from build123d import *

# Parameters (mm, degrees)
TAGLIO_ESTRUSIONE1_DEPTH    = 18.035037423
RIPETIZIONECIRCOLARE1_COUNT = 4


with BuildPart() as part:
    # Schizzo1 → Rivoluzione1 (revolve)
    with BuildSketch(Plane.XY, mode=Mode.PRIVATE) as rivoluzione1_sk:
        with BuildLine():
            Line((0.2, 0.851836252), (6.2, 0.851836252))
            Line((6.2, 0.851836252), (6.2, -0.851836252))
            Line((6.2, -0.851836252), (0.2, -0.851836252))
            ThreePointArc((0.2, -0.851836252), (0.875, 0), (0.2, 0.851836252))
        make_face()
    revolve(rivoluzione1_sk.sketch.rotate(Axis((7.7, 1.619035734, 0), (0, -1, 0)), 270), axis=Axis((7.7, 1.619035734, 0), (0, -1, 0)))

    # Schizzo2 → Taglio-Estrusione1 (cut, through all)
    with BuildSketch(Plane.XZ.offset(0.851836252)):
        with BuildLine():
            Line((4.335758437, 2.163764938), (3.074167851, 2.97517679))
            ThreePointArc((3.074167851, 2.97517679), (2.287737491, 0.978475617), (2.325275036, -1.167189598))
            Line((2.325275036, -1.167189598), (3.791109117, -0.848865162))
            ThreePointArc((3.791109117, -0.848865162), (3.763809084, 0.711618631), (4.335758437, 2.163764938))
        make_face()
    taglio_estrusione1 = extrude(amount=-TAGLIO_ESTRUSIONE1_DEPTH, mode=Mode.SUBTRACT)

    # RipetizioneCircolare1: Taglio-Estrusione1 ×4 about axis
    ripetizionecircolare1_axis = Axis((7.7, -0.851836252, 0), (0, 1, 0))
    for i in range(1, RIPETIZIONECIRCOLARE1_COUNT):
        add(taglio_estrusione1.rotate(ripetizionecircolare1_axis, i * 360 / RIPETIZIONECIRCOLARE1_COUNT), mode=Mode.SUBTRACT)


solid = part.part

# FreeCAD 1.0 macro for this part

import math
import FreeCAD as App
import Part
import Sketcher
from FreeCAD import Vector

doc = App.newDocument("Part")
params = doc.addObject("Spreadsheet::Sheet", "Params")
for row, (alias, value) in enumerate([
    ("sketch1_width", "6 mm"),
    ("revolution_angle", "360 deg"),
    ("sketch2_radius", "4 mm"),
    ("sketch2_radius2", "5.5 mm"),
], start=1):
    params.set(f"A{row}", alias)
    params.set(f"B{row}", "=" + value)
    params.setAlias(f"B{row}", alias)

body = doc.addObject("PartDesign::Body", "Body")

sketch1 = body.newObject("Sketcher::SketchObject", "Sketch")
sketch1.AttachmentSupport = (doc.getObject("XY_Plane"), [""])
sketch1.MapMode = "FlatFace"
sketch1.addGeometry([
    Part.LineSegment(Vector(6.2, 0.851836, 0), Vector(0.2, 0.851836, 0)),
    Part.ArcOfCircle(Part.Circle(Vector(0, 0, 0), Vector(0, 0, 1), 0.875), math.radians(-76.78702), math.radians(76.78702)),
    Part.LineSegment(Vector(0.2, -0.851836, 0), Vector(6.2, -0.851836, 0)),
    Part.LineSegment(Vector(6.2, -0.851836, 0), Vector(6.2, 0.851836, 0)),
], False)
sketch1.addGeometry(Part.LineSegment(Vector(7.7, 0.851836, 0), Vector(7.7, -0.851836, 0)), True)
sketch1.addConstraint([
    Sketcher.Constraint("Coincident", 0, 2, 1, 2),
    Sketcher.Constraint("Coincident", 1, 1, 2, 1),
    Sketcher.Constraint("Coincident", 2, 2, 3, 1),
    Sketcher.Constraint("Coincident", 3, 2, 0, 1),
    Sketcher.Constraint("Horizontal", 0),
    Sketcher.Constraint("Horizontal", 2),
    Sketcher.Constraint("Vertical", 3),
    Sketcher.Constraint("Vertical", 4),
    Sketcher.Constraint("Coincident", 1, 3, -1, 1),
    Sketcher.Constraint("Horizontal", 3, 2, 4, 1),
    Sketcher.Constraint("Horizontal", 2, 2, 4, 2),
    Sketcher.Constraint("Vertical", 0, 2, 1, 1),
    Sketcher.Constraint("DistanceX", 0, 2, 0, 1, 6.0),
    Sketcher.Constraint("Radius", 1, 0.875),
    Sketcher.Constraint("DistanceX", -1, 1, 0, 2, 0.2),
    Sketcher.Constraint("DistanceX", -1, 1, 4, 1, 7.7),
])
sketch1.setExpression("Constraints[12]", "Params.sketch1_width")
revolution = body.newObject("PartDesign::Revolution", "Revolution")
revolution.Profile = sketch1
revolution.ReferenceAxis = (sketch1, ["Axis0"])
revolution.setExpression("Angle", "Params.revolution_angle")

sketch2 = body.newObject("Sketcher::SketchObject", "Sketch001")
sketch2.AttachmentSupport = (doc.getObject("XZ_Plane"), [""])
sketch2.MapMode = "FlatFace"
sketch2.AttachmentOffset = App.Placement(Vector(0, 0, 0.851836), App.Rotation())
sketch2.addGeometry([
    Part.LineSegment(Vector(4.335758, 2.163765, 0), Vector(3.074168, 2.975177, 0)),
    Part.ArcOfCircle(Part.Circle(Vector(7.7, 0, 0), Vector(0, 0, 1), 5.5), math.radians(147.252264), math.radians(192.252264)),
    Part.LineSegment(Vector(2.325275, -1.16719, 0), Vector(3.791109, -0.848865, 0)),
    Part.ArcOfCircle(Part.Circle(Vector(7.7, 0, 0), Vector(0, 0, 1), 4), math.radians(147.252264), math.radians(192.252264)),
], False)
sketch2.addConstraint([
    Sketcher.Constraint("Coincident", 0, 2, 1, 1),
    Sketcher.Constraint("Coincident", 1, 2, 2, 1),
    Sketcher.Constraint("Coincident", 2, 2, 3, 2),
    Sketcher.Constraint("Coincident", 3, 1, 0, 1),
    Sketcher.Constraint("Coincident", 3, 3, 1, 3),
    Sketcher.Constraint("PointOnObject", 1, 3, -1),
    Sketcher.Constraint("Radius", 3, 4.0),
    Sketcher.Constraint("Radius", 1, 5.5),
    Sketcher.Constraint("DistanceX", -1, 1, 1, 3, 7.7),
    Sketcher.Constraint("DistanceY", 1, 2, -1, 1, 1.16719),
    Sketcher.Constraint("DistanceX", -1, 1, 2, 2, 3.791109),
    Sketcher.Constraint("DistanceX", -1, 1, 3, 1, 4.335758),
    Sketcher.Constraint("DistanceX", 0, 2, 2, 2, 0.716941),
])
sketch2.setExpression("Constraints[6]", "Params.sketch2_radius")
sketch2.setExpression("Constraints[7]", "Params.sketch2_radius2")
pocket1 = body.newObject("PartDesign::Pocket", "Pocket")
pocket1.Profile = sketch2
pocket1.Type = "ThroughAll"
doc.recompute()

datumline = body.newObject("PartDesign::Line", "DatumLine")
datumline.Placement = App.Placement(Vector(7.7, 0, 0), App.Rotation(Vector(0, 0, 1), Vector(0, 1, 0)))
polarpattern = body.newObject("PartDesign::PolarPattern", "PolarPattern")
polarpattern.Originals = [pocket1]
polarpattern.Axis = (datumline, [""])
polarpattern.Angle = 360
polarpattern.Occurrences = 4
body.Tip = polarpattern

doc.recompute()
